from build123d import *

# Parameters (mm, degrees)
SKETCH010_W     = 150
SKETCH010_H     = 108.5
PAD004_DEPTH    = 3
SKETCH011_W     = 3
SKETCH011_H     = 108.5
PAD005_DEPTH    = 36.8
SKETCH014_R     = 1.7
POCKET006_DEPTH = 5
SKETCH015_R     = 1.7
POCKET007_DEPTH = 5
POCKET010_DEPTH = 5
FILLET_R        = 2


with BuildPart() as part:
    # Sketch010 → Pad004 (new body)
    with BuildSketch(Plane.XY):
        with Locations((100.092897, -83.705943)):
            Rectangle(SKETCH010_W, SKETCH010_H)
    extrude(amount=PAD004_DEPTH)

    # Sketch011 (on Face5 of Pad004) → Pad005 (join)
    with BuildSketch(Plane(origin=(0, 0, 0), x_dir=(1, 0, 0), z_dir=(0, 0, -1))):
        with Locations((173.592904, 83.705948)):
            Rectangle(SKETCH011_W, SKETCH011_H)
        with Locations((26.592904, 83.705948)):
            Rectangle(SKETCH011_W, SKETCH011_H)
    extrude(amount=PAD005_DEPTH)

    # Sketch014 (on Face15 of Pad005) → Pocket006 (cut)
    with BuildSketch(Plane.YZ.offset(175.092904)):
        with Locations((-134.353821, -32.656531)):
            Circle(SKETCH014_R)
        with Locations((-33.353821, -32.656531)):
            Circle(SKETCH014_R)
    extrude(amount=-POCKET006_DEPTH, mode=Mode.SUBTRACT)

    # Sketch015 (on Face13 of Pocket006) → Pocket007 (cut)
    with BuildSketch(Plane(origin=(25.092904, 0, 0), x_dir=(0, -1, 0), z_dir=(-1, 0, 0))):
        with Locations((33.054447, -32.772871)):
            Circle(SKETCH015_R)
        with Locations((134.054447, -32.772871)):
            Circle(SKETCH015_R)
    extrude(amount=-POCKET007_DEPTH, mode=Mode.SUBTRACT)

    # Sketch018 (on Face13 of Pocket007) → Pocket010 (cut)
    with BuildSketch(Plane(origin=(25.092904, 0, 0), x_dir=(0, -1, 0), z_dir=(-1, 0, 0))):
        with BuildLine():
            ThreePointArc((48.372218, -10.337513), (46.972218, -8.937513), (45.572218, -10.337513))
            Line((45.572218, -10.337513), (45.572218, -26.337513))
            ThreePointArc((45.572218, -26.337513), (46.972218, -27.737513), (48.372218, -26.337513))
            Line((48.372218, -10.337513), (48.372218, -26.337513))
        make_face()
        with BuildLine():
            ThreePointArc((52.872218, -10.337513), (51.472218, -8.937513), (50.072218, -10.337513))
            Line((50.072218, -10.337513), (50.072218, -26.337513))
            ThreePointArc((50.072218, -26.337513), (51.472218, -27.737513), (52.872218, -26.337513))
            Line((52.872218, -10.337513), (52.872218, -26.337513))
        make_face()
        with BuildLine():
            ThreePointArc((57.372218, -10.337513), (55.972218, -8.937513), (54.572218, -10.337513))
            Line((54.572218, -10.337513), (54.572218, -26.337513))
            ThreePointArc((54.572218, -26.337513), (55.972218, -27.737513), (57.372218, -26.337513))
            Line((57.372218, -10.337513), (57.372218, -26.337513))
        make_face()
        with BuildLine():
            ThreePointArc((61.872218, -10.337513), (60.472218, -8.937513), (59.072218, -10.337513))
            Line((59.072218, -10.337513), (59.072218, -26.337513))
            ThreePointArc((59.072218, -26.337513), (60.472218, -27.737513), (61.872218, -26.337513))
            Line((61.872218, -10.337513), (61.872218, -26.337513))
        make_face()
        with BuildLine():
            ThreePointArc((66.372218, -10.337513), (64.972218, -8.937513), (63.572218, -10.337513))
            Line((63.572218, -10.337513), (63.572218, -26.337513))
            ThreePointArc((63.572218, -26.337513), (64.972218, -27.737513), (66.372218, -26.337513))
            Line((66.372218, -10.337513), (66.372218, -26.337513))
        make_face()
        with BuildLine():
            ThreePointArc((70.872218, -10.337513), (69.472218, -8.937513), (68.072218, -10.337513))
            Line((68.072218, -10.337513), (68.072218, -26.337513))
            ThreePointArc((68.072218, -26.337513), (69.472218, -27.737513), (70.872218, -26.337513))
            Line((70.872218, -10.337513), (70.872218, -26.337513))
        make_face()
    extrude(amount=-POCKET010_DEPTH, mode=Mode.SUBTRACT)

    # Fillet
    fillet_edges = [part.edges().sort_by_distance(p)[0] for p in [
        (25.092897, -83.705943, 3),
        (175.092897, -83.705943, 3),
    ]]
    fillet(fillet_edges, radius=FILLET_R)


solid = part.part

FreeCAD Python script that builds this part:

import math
import FreeCAD as App
import Part
import Sketcher

V = App.Vector


def edges_at(feature, points):
    """Names of the edges that pass closest to the given points."""
    edges = feature.Shape.Edges
    near = lambda p: min(range(len(edges)), key=lambda i: edges[i].distToShape(Part.Vertex(*p))[0])
    return sorted({f"Edge{near(p) + 1}" for p in points})

doc = App.newDocument("Part")
params = doc.addObject("Spreadsheet::Sheet", "Params")
for row, (alias, value) in enumerate([
    ("sketch1_width", "150 mm"),
    ("sketch1_height", "108.5 mm"),
    ("pad1_length", "3 mm"),
    ("sketch2_width", "3 mm"),
    ("sketch2_height", "108.5 mm"),
    ("pad2_length", "36.8 mm"),
    ("sketch3_diameter", "3.4 mm"),
    ("pocket1_length", "5 mm"),
    ("sketch4_diameter", "3.4 mm"),
    ("pocket2_length", "5 mm"),
    ("sketch5_radius", "1.4 mm"),
    ("sketch5_height", "16 mm"),
    ("pocket3_length", "5 mm"),
    ("fillet_radius", "2 mm"),
], start=1):
    params.set(f"A{row}", alias)
    params.set(f"B{row}", "=" + value)
    params.setAlias(f"B{row}", alias)

body = doc.addObject("PartDesign::Body", "Body")

sketch1 = doc.addObject("Sketcher::SketchObject", "Sketch")
body.addObject(sketch1)
sketch1.AttachmentSupport = (doc.XY_Plane, [""])
sketch1.MapMode = "FlatFace"
sketch1.addGeometry([
    Part.LineSegment(V(25, -29, 0), V(25, -138, 0)),
    Part.LineSegment(V(25, -138, 0), V(175, -138, 0)),
    Part.LineSegment(V(175, -138, 0), V(175, -29, 0)),
    Part.LineSegment(V(175, -29, 0), V(25, -29, 0)),
], False)
sketch1.addConstraint([
    Sketcher.Constraint("Coincident", 0, 2, 1, 1),
    Sketcher.Constraint("Coincident", 1, 2, 2, 1),
    Sketcher.Constraint("Coincident", 2, 2, 3, 1),
    Sketcher.Constraint("Coincident", 3, 2, 0, 1),
    Sketcher.Constraint("Vertical", 0),
    Sketcher.Constraint("Horizontal", 1),
    Sketcher.Constraint("Vertical", 2),
    Sketcher.Constraint("Horizontal", 3),
    Sketcher.Constraint("DistanceX", 1, 1, 1, 2, 150.0),
    Sketcher.Constraint("DistanceY", 0, 2, 0, 1, 108.5),
    Sketcher.Constraint("DistanceX", -1, 1, 0, 2, 25.092897),
    Sketcher.Constraint("DistanceY", 0, 2, -1, 1, 137.955943),
])
sketch1.setExpression("Constraints[8]", "Params.sketch1_width")
sketch1.setExpression("Constraints[9]", "Params.sketch1_height")
pad1 = doc.addObject("PartDesign::Pad", "Pad")
body.addObject(pad1)
pad1.Profile = sketch1
pad1.setExpression("Length", "Params.pad1_length")

sketch2 = doc.addObject("Sketcher::SketchObject", "Sketch001")
body.addObject(sketch2)
sketch2.AttachmentSupport = (doc.XY_Plane, [""])
sketch2.MapMode = "FlatFace"
sketch2.addGeometry([
    Part.LineSegment(V(172.1, -138, 0), V(172.1, -29.5, 0)),
    Part.LineSegment(V(172.1, -29.5, 0), V(175.1, -29.5, 0)),
    Part.LineSegment(V(175.1, -29.5, 0), V(175.1, -138, 0)),
    Part.LineSegment(V(175.1, -138, 0), V(172.1, -138, 0)),
    Part.LineSegment(V(25.1, -138, 0), V(25.1, -29.5, 0)),
    Part.LineSegment(V(25.1, -29.5, 0), V(28.1, -29.5, 0)),
    Part.LineSegment(V(28.1, -29.5, 0), V(28.1, -138, 0)),
    Part.LineSegment(V(28.1, -138, 0), V(25.1, -138, 0)),
], False)
sketch2.addConstraint([
    Sketcher.Constraint("Coincident", 0, 2, 1, 1),
    Sketcher.Constraint("Coincident", 1, 2, 2, 1),
    Sketcher.Constraint("Coincident", 2, 2, 3, 1),
    Sketcher.Constraint("Coincident", 3, 2, 0, 1),
    Sketcher.Constraint("Coincident", 4, 2, 5, 1),
    Sketcher.Constraint("Coincident", 5, 2, 6, 1),
    Sketcher.Constraint("Coincident", 6, 2, 7, 1),
    Sketcher.Constraint("Coincident", 7, 2, 4, 1),
    Sketcher.Constraint("Vertical", 0),
    Sketcher.Constraint("Horizontal", 1),
    Sketcher.Constraint("Vertical", 2),
    Sketcher.Constraint("Horizontal", 3),
    Sketcher.Constraint("Vertical", 4),
    Sketcher.Constraint("Horizontal", 5),
    Sketcher.Constraint("Vertical", 6),
    Sketcher.Constraint("Horizontal", 7),
    Sketcher.Constraint("Horizontal", 1, 2, 4, 2),
    Sketcher.Constraint("Horizontal", 3, 2, 6, 2),
    Sketcher.Constraint("Equal", 3, 5),
    Sketcher.Constraint("DistanceX", 1, 1, 1, 2, 3.0),
    Sketcher.Constraint("DistanceY", 0, 1, 0, 2, 108.5),
    Sketcher.Constraint("DistanceX", 4, 2, 0, 2, 147.0),
    Sketcher.Constraint("DistanceY", 2, 2, -1, 1, 137.955948),
    Sketcher.Constraint("DistanceX", -1, 1, 0, 2, 172.092904),
])
sketch2.setExpression("Constraints[19]", "Params.sketch2_width")
sketch2.setExpression("Constraints[20]", "Params.sketch2_height")
pad2 = doc.addObject("PartDesign::Pad", "Pad001")
body.addObject(pad2)
pad2.Profile = sketch2
pad2.setExpression("Length", "Params.pad2_length")
pad2.Reversed = True

sketch3 = doc.addObject("Sketcher::SketchObject", "Sketch002")
body.addObject(sketch3)
sketch3.AttachmentSupport = (doc.YZ_Plane, [""])
sketch3.MapMode = "FlatFace"
sketch3.AttachmentOffset = App.Placement(V(0, 0, 175.092904), App.Rotation())
sketch3.addGeometry([
    Part.Circle(V(-134.4, -32.7, 0), V(0, 0, 1), 1.7),
    Part.Circle(V(-33.4, -32.7, 0), V(0, 0, 1), 1.7),
], False)
sketch3.addConstraint([
    Sketcher.Constraint("Equal", 0, 1),
    Sketcher.Constraint("Horizontal", 0, 3, 1, 3),
    Sketcher.Constraint("Diameter", 0, 3.4),
    Sketcher.Constraint("DistanceX", 0, 3, 1, 3, 101.0),
    Sketcher.Constraint("DistanceX", 0, 3, -1, 1, 134.353821),
    Sketcher.Constraint("DistanceY", 0, 3, -1, 1, 32.656531),
])
sketch3.setExpression("Constraints[2]", "Params.sketch3_diameter")
pocket1 = doc.addObject("PartDesign::Pocket", "Pocket")
body.addObject(pocket1)
pocket1.Profile = sketch3
pocket1.setExpression("Length", "Params.pocket1_length")

sketch4 = doc.addObject("Sketcher::SketchObject", "Sketch003")
body.addObject(sketch4)
sketch4.AttachmentSupport = (doc.YZ_Plane, [""])
sketch4.MapMode = "FlatFace"
sketch4.AttachmentOffset = App.Placement(V(0, 0, 25.092904), App.Rotation())
sketch4.addGeometry([
    Part.Circle(V(-33.1, -32.8, 0), V(0, 0, 1), 1.7),
    Part.Circle(V(-134.1, -32.8, 0), V(0, 0, 1), 1.7),
], False)
sketch4.addConstraint([
    Sketcher.Constraint("Equal", 0, 1),
    Sketcher.Constraint("Horizontal", 0, 3, 1, 3),
    Sketcher.Constraint("Diameter", 0, 3.4),
    Sketcher.Constraint("DistanceX", 1, 3, 0, 3, 101.0),
    Sketcher.Constraint("DistanceY", 0, 3, -1, 1, 32.772871),
    Sketcher.Constraint("DistanceX", 0, 3, -1, 1, 33.054447),
])
sketch4.setExpression("Constraints[2]", "Params.sketch4_diameter")
pocket2 = doc.addObject("PartDesign::Pocket", "Pocket001")
body.addObject(pocket2)
pocket2.Profile = sketch4
pocket2.setExpression("Length", "Params.pocket2_length")
pocket2.Reversed = True

sketch5 = doc.addObject("Sketcher::SketchObject", "Sketch004")
body.addObject(sketch5)
sketch5.AttachmentSupport = (doc.YZ_Plane, [""])
sketch5.MapMode = "FlatFace"
sketch5.AttachmentOffset = App.Placement(V(0, 0, 25.092904), App.Rotation())
sketch5.addGeometry([
    Part.ArcOfCircle(Part.Circle(V(-47, -10.3, 0), V(0, 0, 1), 1.4), math.radians(0), math.radians(180)),
    Part.LineSegment(V(-45.6, -10.3, 0), V(-45.6, -26.3, 0)),
    Part.ArcOfCircle(Part.Circle(V(-47, -26.3, 0), V(0, 0, 1), 1.4), math.radians(180), math.radians(360)),
    Part.LineSegment(V(-48.4, -26.3, 0), V(-48.4, -10.3, 0)),
    Part.ArcOfCircle(Part.Circle(V(-51.5, -10.3, 0), V(0, 0, 1), 1.4), math.radians(0), math.radians(180)),
    Part.LineSegment(V(-50.1, -10.3, 0), V(-50.1, -26.3, 0)),
    Part.ArcOfCircle(Part.Circle(V(-51.5, -26.3, 0), V(0, 0, 1), 1.4), math.radians(180), math.radians(360)),
    Part.LineSegment(V(-52.9, -26.3, 0), V(-52.9, -10.3, 0)),
    Part.ArcOfCircle(Part.Circle(V(-56, -10.3, 0), V(0, 0, 1), 1.4), math.radians(0), math.radians(180)),
    Part.LineSegment(V(-54.6, -10.3, 0), V(-54.6, -26.3, 0)),
    Part.ArcOfCircle(Part.Circle(V(-56, -26.3, 0), V(0, 0, 1), 1.4), math.radians(180), math.radians(360)),
    Part.LineSegment(V(-57.4, -26.3, 0), V(-57.4, -10.3, 0)),
    Part.ArcOfCircle(Part.Circle(V(-60.5, -10.3, 0), V(0, 0, 1), 1.4), math.radians(0), math.radians(180)),
    Part.LineSegment(V(-59.1, -10.3, 0), V(-59.1, -26.3, 0)),
    Part.ArcOfCircle(Part.Circle(V(-60.5, -26.3, 0), V(0, 0, 1), 1.4), math.radians(180), math.radians(360)),
    Part.LineSegment(V(-61.9, -26.3, 0), V(-61.9, -10.3, 0)),
    Part.ArcOfCircle(Part.Circle(V(-65, -10.3, 0), V(0, 0, 1), 1.4), math.radians(0), math.radians(180)),
    Part.LineSegment(V(-63.6, -10.3, 0), V(-63.6, -26.3, 0)),
    Part.ArcOfCircle(Part.Circle(V(-65, -26.3, 0), V(0, 0, 1), 1.4), math.radians(180), math.radians(360)),
    Part.LineSegment(V(-66.4, -26.3, 0), V(-66.4, -10.3, 0)),
    Part.ArcOfCircle(Part.Circle(V(-69.5, -10.3, 0), V(0, 0, 1), 1.4), math.radians(0), math.radians(180)),
    Part.LineSegment(V(-68.1, -10.3, 0), V(-68.1, -26.3, 0)),
    Part.ArcOfCircle(Part.Circle(V(-69.5, -26.3, 0), V(0, 0, 1), 1.4), math.radians(180), math.radians(360)),
    Part.LineSegment(V(-70.9, -26.3, 0), V(-70.9, -10.3, 0)),
], False)
sketch5.addConstraint([
    Sketcher.Constraint("Tangent", 0, 1, 1, 1),
    Sketcher.Constraint("Tangent", 1, 2, 2, 2),
    Sketcher.Constraint("Tangent", 2, 1, 3, 1),
    Sketcher.Constraint("Tangent", 3, 2, 0, 2),
    Sketcher.Constraint("Tangent", 4, 1, 5, 1),
    Sketcher.Constraint("Tangent", 5, 2, 6, 2),
    Sketcher.Constraint("Tangent", 6, 1, 7, 1),
    Sketcher.Constraint("Tangent", 7, 2, 4, 2),
    Sketcher.Constraint("Tangent", 8, 1, 9, 1),
    Sketcher.Constraint("Tangent", 9, 2, 10, 2),
    Sketcher.Constraint("Tangent", 10, 1, 11, 1),
    Sketcher.Constraint("Tangent", 11, 2, 8, 2),
    Sketcher.Constraint("Tangent", 12, 1, 13, 1),
    Sketcher.Constraint("Tangent", 13, 2, 14, 2),
    Sketcher.Constraint("Tangent", 14, 1, 15, 1),
    Sketcher.Constraint("Tangent", 15, 2, 12, 2),
    Sketcher.Constraint("Tangent", 16, 1, 17, 1),
    Sketcher.Constraint("Tangent", 17, 2, 18, 2),
    Sketcher.Constraint("Tangent", 18, 1, 19, 1),
    Sketcher.Constraint("Tangent", 19, 2, 16, 2),
    Sketcher.Constraint("Tangent", 20, 1, 21, 1),
    Sketcher.Constraint("Tangent", 21, 2, 22, 2),
    Sketcher.Constraint("Tangent", 22, 1, 23, 1),
    Sketcher.Constraint("Tangent", 23, 2, 20, 2),
    Sketcher.Constraint("Vertical", 1),
    Sketcher.Constraint("Vertical", 3),
    Sketcher.Constraint("Vertical", 5),
    Sketcher.Constraint("Vertical", 7),
    Sketcher.Constraint("Vertical", 9),
    Sketcher.Constraint("Vertical", 11),
    Sketcher.Constraint("Vertical", 13),
    Sketcher.Constraint("Vertical", 15),
    Sketcher.Constraint("Vertical", 17),
    Sketcher.Constraint("Vertical", 19),
    Sketcher.Constraint("Vertical", 21),
    Sketcher.Constraint("Vertical", 23),
    Sketcher.Constraint("Equal", 2, 4),
    Sketcher.Constraint("Equal", 6, 8),
    Sketcher.Constraint("Equal", 10, 12),
    Sketcher.Constraint("Equal", 14, 16),
    Sketcher.Constraint("Equal", 18, 20),
    Sketcher.Constraint("Horizontal", 0, 3, 4, 3),
    Sketcher.Constraint("Horizontal", 2, 3, 6, 3),
    Sketcher.Constraint("Horizontal", 4, 3, 8, 3),
    Sketcher.Constraint("Horizontal", 6, 3, 10, 3),
    Sketcher.Constraint("Horizontal", 8, 3, 12, 3),
    Sketcher.Constraint("Horizontal", 10, 3, 14, 3),
    Sketcher.Constraint("Horizontal", 12, 3, 16, 3),
    Sketcher.Constraint("Horizontal", 14, 3, 18, 3),
    Sketcher.Constraint("Horizontal", 16, 3, 20, 3),
    Sketcher.Constraint("Horizontal", 18, 3, 22, 3),
    Sketcher.Constraint("Radius", 0, 1.4),
    Sketcher.Constraint("DistanceY", 1, 2, 1, 1, 16.0),
    Sketcher.Constraint("DistanceX", 8, 3, 0, 3, 9.0),
    Sketcher.Constraint("DistanceX", 12, 3, 4, 3, 9.0),
    Sketcher.Constraint("DistanceX", 16, 3, 8, 3, 9.0),
    Sketcher.Constraint("DistanceX", 20, 3, 12, 3, 9.0),
    Sketcher.Constraint("DistanceX", 4, 3, 0, 3, 4.5),
    Sketcher.Constraint("DistanceX", 16, 3, -1, 1, 64.972218),
    Sketcher.Constraint("DistanceY", 0, 3, -1, 1, 10.337513),
])
sketch5.setExpression("Constraints[51]", "Params.sketch5_radius")
sketch5.setExpression("Constraints[52]", "Params.sketch5_height")
pocket3 = doc.addObject("PartDesign::Pocket", "Pocket002")
body.addObject(pocket3)
pocket3.Profile = sketch5
pocket3.setExpression("Length", "Params.pocket3_length")
pocket3.Reversed = True
doc.recompute()

fillet = doc.addObject("PartDesign::Fillet", "Fillet")
body.addObject(fillet)
fillet.Base = (pocket3, edges_at(pocket3, [(25.093, -83.706, 3), (175.093, -83.706, 3)]))
fillet.setExpression("Radius", "Params.fillet_radius")

doc.recompute()
